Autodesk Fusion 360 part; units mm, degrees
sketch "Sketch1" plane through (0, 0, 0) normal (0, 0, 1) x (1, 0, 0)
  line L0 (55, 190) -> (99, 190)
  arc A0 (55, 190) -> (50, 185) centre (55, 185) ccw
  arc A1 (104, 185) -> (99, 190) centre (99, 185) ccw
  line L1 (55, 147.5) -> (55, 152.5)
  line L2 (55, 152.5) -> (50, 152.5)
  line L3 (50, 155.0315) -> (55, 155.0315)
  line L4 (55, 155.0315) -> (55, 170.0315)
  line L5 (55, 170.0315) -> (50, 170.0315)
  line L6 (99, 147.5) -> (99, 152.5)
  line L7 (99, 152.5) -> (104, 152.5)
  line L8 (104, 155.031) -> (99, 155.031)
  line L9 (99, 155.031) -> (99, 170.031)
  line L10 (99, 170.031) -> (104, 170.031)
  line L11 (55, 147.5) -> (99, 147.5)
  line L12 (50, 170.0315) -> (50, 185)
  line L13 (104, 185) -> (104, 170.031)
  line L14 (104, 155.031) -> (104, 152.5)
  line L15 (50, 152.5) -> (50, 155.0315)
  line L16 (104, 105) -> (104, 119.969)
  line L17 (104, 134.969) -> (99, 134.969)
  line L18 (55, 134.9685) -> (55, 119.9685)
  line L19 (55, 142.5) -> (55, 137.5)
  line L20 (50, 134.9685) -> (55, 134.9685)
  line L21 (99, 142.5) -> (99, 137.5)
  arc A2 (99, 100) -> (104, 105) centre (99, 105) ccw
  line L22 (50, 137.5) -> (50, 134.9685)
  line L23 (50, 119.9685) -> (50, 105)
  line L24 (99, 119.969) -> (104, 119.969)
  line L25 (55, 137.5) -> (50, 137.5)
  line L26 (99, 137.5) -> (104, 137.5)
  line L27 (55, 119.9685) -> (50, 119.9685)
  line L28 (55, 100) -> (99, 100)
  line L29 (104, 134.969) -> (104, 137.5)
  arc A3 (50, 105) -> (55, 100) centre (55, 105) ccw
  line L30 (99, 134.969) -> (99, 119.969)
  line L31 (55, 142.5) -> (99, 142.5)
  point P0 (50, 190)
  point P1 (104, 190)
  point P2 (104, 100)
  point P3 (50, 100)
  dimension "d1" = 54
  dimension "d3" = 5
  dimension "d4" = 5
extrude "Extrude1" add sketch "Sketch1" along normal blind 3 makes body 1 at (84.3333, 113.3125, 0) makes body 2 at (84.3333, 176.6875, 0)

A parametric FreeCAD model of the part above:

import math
import FreeCAD as App
import Part
import Sketcher

V = App.Vector

doc = App.newDocument("Part")
params = doc.addObject("Spreadsheet::Sheet", "Params")
for row, (alias, value) in enumerate([
    ("sketch1_radius", "5 mm"),
    ("sketch1_width", "44 mm"),
    ("sketch1_height", "15 mm"),
    ("pad1_length", "3 mm"),
], start=1):
    params.set(f"A{row}", alias)
    params.set(f"B{row}", "=" + value)
    params.setAlias(f"B{row}", alias)

body = doc.addObject("PartDesign::Body", "Body")
body.AllowCompound = True

# Sketch on XY plane
sketch1 = body.newObject("Sketcher::SketchObject", "Sketch")
sketch1.AttachmentSupport = (doc.getObject("XY_Plane"), [""])
sketch1.MapMode = "FlatFace"
sketch1.addGeometry([
    Part.LineSegment(V(99, 190, 0), V(55, 190, 0)),  # 0
    Part.ArcOfCircle(Part.Circle(V(55, 185, 0), V(0, 0, 1), 5), math.radians(90), math.radians(180)),  # 1
    Part.LineSegment(V(50, 185, 0), V(50, 170, 0)),  # 2
    Part.LineSegment(V(50, 170, 0), V(55, 170, 0)),  # 3
    Part.LineSegment(V(55, 170, 0), V(55, 155, 0)),  # 4
    Part.LineSegment(V(55, 155, 0), V(50, 155, 0)),  # 5
    Part.LineSegment(V(50, 155, 0), V(50, 152.5, 0)),  # 6
    Part.LineSegment(V(50, 152.5, 0), V(55, 152.5, 0)),  # 7
    Part.LineSegment(V(55, 152.5, 0), V(55, 147.5, 0)),  # 8
    Part.LineSegment(V(55, 147.5, 0), V(99, 147.5, 0)),  # 9
    Part.LineSegment(V(99, 147.5, 0), V(99, 152.5, 0)),  # 10
    Part.LineSegment(V(99, 152.5, 0), V(104, 152.5, 0)),  # 11
    Part.LineSegment(V(104, 152.5, 0), V(104, 155, 0)),  # 12
    Part.LineSegment(V(104, 155, 0), V(99, 155, 0)),  # 13
    Part.LineSegment(V(99, 155, 0), V(99, 170, 0)),  # 14
    Part.LineSegment(V(99, 170, 0), V(104, 170, 0)),  # 15
    Part.LineSegment(V(104, 170, 0), V(104, 185, 0)),  # 16
    Part.ArcOfCircle(Part.Circle(V(99, 185, 0), V(0, 0, 1), 5), math.radians(0), math.radians(90)),  # 17
    Part.ArcOfCircle(Part.Circle(V(99, 105, 0), V(0, 0, 1), 5), math.radians(-90), math.radians(0)),  # 18
    Part.LineSegment(V(104, 105, 0), V(104, 120, 0)),  # 19
    Part.LineSegment(V(104, 120, 0), V(99, 120, 0)),  # 20
    Part.LineSegment(V(99, 120, 0), V(99, 135, 0)),  # 21
    Part.LineSegment(V(99, 135, 0), V(104, 135, 0)),  # 22
    Part.LineSegment(V(104, 135, 0), V(104, 137.5, 0)),  # 23
    Part.LineSegment(V(104, 137.5, 0), V(99, 137.5, 0)),  # 24
    Part.LineSegment(V(99, 137.5, 0), V(99, 142.5, 0)),  # 25
    Part.LineSegment(V(99, 142.5, 0), V(55, 142.5, 0)),  # 26
    Part.LineSegment(V(55, 142.5, 0), V(55, 137.5, 0)),  # 27
    Part.LineSegment(V(55, 137.5, 0), V(50, 137.5, 0)),  # 28
    Part.LineSegment(V(50, 137.5, 0), V(50, 135, 0)),  # 29
    Part.LineSegment(V(50, 135, 0), V(55, 135, 0)),  # 30
    Part.LineSegment(V(55, 135, 0), V(55, 120, 0)),  # 31
    Part.LineSegment(V(55, 120, 0), V(50, 120, 0)),  # 32
    Part.LineSegment(V(50, 120, 0), V(50, 105, 0)),  # 33
    Part.ArcOfCircle(Part.Circle(V(55, 105, 0), V(0, 0, 1), 5), math.radians(180), math.radians(270)),  # 34
    Part.LineSegment(V(55, 100, 0), V(99, 100, 0)),  # 35
], False)
sketch1.addConstraint([
    Sketcher.Constraint("Tangent", 0, 2, 1, 1),
    Sketcher.Constraint("Tangent", 1, 2, 2, 1),
    Sketcher.Constraint("Coincident", 2, 2, 3, 1),
    Sketcher.Constraint("Coincident", 3, 2, 4, 1),
    Sketcher.Constraint("Coincident", 4, 2, 5, 1),
    Sketcher.Constraint("Coincident", 5, 2, 6, 1),
    Sketcher.Constraint("Coincident", 6, 2, 7, 1),
    Sketcher.Constraint("Coincident", 7, 2, 8, 1),
    Sketcher.Constraint("Coincident", 8, 2, 9, 1),
    Sketcher.Constraint("Coincident", 9, 2, 10, 1),
    Sketcher.Constraint("Coincident", 10, 2, 11, 1),
    Sketcher.Constraint("Coincident", 11, 2, 12, 1),
    Sketcher.Constraint("Coincident", 12, 2, 13, 1),
    Sketcher.Constraint("Coincident", 13, 2, 14, 1),
    Sketcher.Constraint("Coincident", 14, 2, 15, 1),
    Sketcher.Constraint("Coincident", 15, 2, 16, 1),
    Sketcher.Constraint("Tangent", 16, 2, 17, 1),
    Sketcher.Constraint("Tangent", 17, 2, 0, 1),
    Sketcher.Constraint("Tangent", 18, 2, 19, 1),
    Sketcher.Constraint("Coincident", 19, 2, 20, 1),
    Sketcher.Constraint("Coincident", 20, 2, 21, 1),
    Sketcher.Constraint("Coincident", 21, 2, 22, 1),
    Sketcher.Constraint("Coincident", 22, 2, 23, 1),
    Sketcher.Constraint("Coincident", 23, 2, 24, 1),
    Sketcher.Constraint("Coincident", 24, 2, 25, 1),
    Sketcher.Constraint("Coincident", 25, 2, 26, 1),
    Sketcher.Constraint("Coincident", 26, 2, 27, 1),
    Sketcher.Constraint("Coincident", 27, 2, 28, 1),
    Sketcher.Constraint("Coincident", 28, 2, 29, 1),
    Sketcher.Constraint("Coincident", 29, 2, 30, 1),
    Sketcher.Constraint("Coincident", 30, 2, 31, 1),
    Sketcher.Constraint("Coincident", 31, 2, 32, 1),
    Sketcher.Constraint("Coincident", 32, 2, 33, 1),
    Sketcher.Constraint("Tangent", 33, 2, 34, 1),
    Sketcher.Constraint("Tangent", 34, 2, 35, 1),
    Sketcher.Constraint("Tangent", 35, 2, 18, 1),
    Sketcher.Constraint("Horizontal", 0),
    Sketcher.Constraint("Vertical", 2),
    Sketcher.Constraint("Horizontal", 3),
    Sketcher.Constraint("Vertical", 4),
    Sketcher.Constraint("Horizontal", 5),
    Sketcher.Constraint("Vertical", 6),
    Sketcher.Constraint("Horizontal", 7),
    Sketcher.Constraint("Vertical", 8),
    Sketcher.Constraint("Horizontal", 9),
    Sketcher.Constraint("Vertical", 10),
    Sketcher.Constraint("Horizontal", 11),
    Sketcher.Constraint("Vertical", 12),
    Sketcher.Constraint("Horizontal", 13),
    Sketcher.Constraint("Vertical", 14),
    Sketcher.Constraint("Horizontal", 15),
    Sketcher.Constraint("Vertical", 16),
    Sketcher.Constraint("Vertical", 19),
    Sketcher.Constraint("Horizontal", 20),
    Sketcher.Constraint("Vertical", 21),
    Sketcher.Constraint("Horizontal", 22),
    Sketcher.Constraint("Vertical", 23),
    Sketcher.Constraint("Horizontal", 24),
    Sketcher.Constraint("Vertical", 25),
    Sketcher.Constraint("Horizontal", 26),
    Sketcher.Constraint("Vertical", 27),
    Sketcher.Constraint("Horizontal", 28),
    Sketcher.Constraint("Vertical", 29),
    Sketcher.Constraint("Horizontal", 30),
    Sketcher.Constraint("Vertical", 31),
    Sketcher.Constraint("Horizontal", 32),
    Sketcher.Constraint("Vertical", 33),
    Sketcher.Constraint("Horizontal", 35),
    Sketcher.Constraint("Equal", 1, 17),
    Sketcher.Constraint("Equal", 17, 18),
    Sketcher.Constraint("Equal", 18, 34),
    Sketcher.Constraint("Horizontal", 7, 2, 10, 2),
    Sketcher.Constraint("Horizontal", 24, 2, 27, 2),
    Sketcher.Constraint("Vertical", 17, 3, 18, 3),
    Sketcher.Constraint("Vertical", 1, 3, 34, 3),
    Sketcher.Constraint("Vertical", 0, 2, 3, 2),
    Sketcher.Constraint("Vertical", 2, 2, 5, 2),
    Sketcher.Constraint("Vertical", 4, 2, 7, 2),
    Sketcher.Constraint("Vertical", 18, 3, 9, 2),
    Sketcher.Constraint("Vertical", 10, 2, 13, 2),
    Sketcher.Constraint("Vertical", 12, 2, 15, 2),
    Sketcher.Constraint("Vertical", 17, 2, 20, 2),
    Sketcher.Constraint("Vertical", 19, 2, 22, 2),
    Sketcher.Constraint("Vertical", 21, 2, 24, 2),
    Sketcher.Constraint("Vertical", 8, 2, 26, 2),
    Sketcher.Constraint("Vertical", 6, 2, 28, 2),
    Sketcher.Constraint("Vertical", 27, 2, 30, 2),
    Sketcher.Constraint("Equal", 32, 8),
    Sketcher.Constraint("Equal", 4, 14),
    Sketcher.Constraint("Equal", 16, 19),
    Sketcher.Constraint("Equal", 14, 21),
    Sketcher.Constraint("Equal", 12, 23),
    Sketcher.Constraint("Equal", 10, 25),
    Sketcher.Constraint("Equal", 6, 29),
    Sketcher.Constraint("Equal", 21, 31),
    Sketcher.Constraint("Radius", 1, 5.0),
    Sketcher.Constraint("DistanceY", 25, 2, 9, 2, 5.0),
    Sketcher.Constraint("DistanceX", 0, 2, 0, 1, 44.0),
    Sketcher.Constraint("DistanceY", 4, 2, 4, 1, 15.0),
    Sketcher.Constraint("DistanceX", -1, 1, 1, 3, 55.0),
    Sketcher.Constraint("DistanceY", -1, 1, 1, 3, 185.0),
    Sketcher.Constraint("DistanceY", -1, 1, 18, 3, 105.0),
    Sketcher.Constraint("DistanceY", 12, 1, 12, 2, 2.531),
    Sketcher.Constraint("DistanceY", 2, 2, 2, 1, 14.9685),
])
sketch1.setExpression("Constraints[95]", "Params.sketch1_radius")
sketch1.setExpression("Constraints[97]", "Params.sketch1_width")
sketch1.setExpression("Constraints[98]", "Params.sketch1_height")
pad1 = body.newObject("PartDesign::Pad", "Pad")
pad1.Profile = sketch1
pad1.setExpression("Length", "Params.pad1_length")

doc.recompute()
